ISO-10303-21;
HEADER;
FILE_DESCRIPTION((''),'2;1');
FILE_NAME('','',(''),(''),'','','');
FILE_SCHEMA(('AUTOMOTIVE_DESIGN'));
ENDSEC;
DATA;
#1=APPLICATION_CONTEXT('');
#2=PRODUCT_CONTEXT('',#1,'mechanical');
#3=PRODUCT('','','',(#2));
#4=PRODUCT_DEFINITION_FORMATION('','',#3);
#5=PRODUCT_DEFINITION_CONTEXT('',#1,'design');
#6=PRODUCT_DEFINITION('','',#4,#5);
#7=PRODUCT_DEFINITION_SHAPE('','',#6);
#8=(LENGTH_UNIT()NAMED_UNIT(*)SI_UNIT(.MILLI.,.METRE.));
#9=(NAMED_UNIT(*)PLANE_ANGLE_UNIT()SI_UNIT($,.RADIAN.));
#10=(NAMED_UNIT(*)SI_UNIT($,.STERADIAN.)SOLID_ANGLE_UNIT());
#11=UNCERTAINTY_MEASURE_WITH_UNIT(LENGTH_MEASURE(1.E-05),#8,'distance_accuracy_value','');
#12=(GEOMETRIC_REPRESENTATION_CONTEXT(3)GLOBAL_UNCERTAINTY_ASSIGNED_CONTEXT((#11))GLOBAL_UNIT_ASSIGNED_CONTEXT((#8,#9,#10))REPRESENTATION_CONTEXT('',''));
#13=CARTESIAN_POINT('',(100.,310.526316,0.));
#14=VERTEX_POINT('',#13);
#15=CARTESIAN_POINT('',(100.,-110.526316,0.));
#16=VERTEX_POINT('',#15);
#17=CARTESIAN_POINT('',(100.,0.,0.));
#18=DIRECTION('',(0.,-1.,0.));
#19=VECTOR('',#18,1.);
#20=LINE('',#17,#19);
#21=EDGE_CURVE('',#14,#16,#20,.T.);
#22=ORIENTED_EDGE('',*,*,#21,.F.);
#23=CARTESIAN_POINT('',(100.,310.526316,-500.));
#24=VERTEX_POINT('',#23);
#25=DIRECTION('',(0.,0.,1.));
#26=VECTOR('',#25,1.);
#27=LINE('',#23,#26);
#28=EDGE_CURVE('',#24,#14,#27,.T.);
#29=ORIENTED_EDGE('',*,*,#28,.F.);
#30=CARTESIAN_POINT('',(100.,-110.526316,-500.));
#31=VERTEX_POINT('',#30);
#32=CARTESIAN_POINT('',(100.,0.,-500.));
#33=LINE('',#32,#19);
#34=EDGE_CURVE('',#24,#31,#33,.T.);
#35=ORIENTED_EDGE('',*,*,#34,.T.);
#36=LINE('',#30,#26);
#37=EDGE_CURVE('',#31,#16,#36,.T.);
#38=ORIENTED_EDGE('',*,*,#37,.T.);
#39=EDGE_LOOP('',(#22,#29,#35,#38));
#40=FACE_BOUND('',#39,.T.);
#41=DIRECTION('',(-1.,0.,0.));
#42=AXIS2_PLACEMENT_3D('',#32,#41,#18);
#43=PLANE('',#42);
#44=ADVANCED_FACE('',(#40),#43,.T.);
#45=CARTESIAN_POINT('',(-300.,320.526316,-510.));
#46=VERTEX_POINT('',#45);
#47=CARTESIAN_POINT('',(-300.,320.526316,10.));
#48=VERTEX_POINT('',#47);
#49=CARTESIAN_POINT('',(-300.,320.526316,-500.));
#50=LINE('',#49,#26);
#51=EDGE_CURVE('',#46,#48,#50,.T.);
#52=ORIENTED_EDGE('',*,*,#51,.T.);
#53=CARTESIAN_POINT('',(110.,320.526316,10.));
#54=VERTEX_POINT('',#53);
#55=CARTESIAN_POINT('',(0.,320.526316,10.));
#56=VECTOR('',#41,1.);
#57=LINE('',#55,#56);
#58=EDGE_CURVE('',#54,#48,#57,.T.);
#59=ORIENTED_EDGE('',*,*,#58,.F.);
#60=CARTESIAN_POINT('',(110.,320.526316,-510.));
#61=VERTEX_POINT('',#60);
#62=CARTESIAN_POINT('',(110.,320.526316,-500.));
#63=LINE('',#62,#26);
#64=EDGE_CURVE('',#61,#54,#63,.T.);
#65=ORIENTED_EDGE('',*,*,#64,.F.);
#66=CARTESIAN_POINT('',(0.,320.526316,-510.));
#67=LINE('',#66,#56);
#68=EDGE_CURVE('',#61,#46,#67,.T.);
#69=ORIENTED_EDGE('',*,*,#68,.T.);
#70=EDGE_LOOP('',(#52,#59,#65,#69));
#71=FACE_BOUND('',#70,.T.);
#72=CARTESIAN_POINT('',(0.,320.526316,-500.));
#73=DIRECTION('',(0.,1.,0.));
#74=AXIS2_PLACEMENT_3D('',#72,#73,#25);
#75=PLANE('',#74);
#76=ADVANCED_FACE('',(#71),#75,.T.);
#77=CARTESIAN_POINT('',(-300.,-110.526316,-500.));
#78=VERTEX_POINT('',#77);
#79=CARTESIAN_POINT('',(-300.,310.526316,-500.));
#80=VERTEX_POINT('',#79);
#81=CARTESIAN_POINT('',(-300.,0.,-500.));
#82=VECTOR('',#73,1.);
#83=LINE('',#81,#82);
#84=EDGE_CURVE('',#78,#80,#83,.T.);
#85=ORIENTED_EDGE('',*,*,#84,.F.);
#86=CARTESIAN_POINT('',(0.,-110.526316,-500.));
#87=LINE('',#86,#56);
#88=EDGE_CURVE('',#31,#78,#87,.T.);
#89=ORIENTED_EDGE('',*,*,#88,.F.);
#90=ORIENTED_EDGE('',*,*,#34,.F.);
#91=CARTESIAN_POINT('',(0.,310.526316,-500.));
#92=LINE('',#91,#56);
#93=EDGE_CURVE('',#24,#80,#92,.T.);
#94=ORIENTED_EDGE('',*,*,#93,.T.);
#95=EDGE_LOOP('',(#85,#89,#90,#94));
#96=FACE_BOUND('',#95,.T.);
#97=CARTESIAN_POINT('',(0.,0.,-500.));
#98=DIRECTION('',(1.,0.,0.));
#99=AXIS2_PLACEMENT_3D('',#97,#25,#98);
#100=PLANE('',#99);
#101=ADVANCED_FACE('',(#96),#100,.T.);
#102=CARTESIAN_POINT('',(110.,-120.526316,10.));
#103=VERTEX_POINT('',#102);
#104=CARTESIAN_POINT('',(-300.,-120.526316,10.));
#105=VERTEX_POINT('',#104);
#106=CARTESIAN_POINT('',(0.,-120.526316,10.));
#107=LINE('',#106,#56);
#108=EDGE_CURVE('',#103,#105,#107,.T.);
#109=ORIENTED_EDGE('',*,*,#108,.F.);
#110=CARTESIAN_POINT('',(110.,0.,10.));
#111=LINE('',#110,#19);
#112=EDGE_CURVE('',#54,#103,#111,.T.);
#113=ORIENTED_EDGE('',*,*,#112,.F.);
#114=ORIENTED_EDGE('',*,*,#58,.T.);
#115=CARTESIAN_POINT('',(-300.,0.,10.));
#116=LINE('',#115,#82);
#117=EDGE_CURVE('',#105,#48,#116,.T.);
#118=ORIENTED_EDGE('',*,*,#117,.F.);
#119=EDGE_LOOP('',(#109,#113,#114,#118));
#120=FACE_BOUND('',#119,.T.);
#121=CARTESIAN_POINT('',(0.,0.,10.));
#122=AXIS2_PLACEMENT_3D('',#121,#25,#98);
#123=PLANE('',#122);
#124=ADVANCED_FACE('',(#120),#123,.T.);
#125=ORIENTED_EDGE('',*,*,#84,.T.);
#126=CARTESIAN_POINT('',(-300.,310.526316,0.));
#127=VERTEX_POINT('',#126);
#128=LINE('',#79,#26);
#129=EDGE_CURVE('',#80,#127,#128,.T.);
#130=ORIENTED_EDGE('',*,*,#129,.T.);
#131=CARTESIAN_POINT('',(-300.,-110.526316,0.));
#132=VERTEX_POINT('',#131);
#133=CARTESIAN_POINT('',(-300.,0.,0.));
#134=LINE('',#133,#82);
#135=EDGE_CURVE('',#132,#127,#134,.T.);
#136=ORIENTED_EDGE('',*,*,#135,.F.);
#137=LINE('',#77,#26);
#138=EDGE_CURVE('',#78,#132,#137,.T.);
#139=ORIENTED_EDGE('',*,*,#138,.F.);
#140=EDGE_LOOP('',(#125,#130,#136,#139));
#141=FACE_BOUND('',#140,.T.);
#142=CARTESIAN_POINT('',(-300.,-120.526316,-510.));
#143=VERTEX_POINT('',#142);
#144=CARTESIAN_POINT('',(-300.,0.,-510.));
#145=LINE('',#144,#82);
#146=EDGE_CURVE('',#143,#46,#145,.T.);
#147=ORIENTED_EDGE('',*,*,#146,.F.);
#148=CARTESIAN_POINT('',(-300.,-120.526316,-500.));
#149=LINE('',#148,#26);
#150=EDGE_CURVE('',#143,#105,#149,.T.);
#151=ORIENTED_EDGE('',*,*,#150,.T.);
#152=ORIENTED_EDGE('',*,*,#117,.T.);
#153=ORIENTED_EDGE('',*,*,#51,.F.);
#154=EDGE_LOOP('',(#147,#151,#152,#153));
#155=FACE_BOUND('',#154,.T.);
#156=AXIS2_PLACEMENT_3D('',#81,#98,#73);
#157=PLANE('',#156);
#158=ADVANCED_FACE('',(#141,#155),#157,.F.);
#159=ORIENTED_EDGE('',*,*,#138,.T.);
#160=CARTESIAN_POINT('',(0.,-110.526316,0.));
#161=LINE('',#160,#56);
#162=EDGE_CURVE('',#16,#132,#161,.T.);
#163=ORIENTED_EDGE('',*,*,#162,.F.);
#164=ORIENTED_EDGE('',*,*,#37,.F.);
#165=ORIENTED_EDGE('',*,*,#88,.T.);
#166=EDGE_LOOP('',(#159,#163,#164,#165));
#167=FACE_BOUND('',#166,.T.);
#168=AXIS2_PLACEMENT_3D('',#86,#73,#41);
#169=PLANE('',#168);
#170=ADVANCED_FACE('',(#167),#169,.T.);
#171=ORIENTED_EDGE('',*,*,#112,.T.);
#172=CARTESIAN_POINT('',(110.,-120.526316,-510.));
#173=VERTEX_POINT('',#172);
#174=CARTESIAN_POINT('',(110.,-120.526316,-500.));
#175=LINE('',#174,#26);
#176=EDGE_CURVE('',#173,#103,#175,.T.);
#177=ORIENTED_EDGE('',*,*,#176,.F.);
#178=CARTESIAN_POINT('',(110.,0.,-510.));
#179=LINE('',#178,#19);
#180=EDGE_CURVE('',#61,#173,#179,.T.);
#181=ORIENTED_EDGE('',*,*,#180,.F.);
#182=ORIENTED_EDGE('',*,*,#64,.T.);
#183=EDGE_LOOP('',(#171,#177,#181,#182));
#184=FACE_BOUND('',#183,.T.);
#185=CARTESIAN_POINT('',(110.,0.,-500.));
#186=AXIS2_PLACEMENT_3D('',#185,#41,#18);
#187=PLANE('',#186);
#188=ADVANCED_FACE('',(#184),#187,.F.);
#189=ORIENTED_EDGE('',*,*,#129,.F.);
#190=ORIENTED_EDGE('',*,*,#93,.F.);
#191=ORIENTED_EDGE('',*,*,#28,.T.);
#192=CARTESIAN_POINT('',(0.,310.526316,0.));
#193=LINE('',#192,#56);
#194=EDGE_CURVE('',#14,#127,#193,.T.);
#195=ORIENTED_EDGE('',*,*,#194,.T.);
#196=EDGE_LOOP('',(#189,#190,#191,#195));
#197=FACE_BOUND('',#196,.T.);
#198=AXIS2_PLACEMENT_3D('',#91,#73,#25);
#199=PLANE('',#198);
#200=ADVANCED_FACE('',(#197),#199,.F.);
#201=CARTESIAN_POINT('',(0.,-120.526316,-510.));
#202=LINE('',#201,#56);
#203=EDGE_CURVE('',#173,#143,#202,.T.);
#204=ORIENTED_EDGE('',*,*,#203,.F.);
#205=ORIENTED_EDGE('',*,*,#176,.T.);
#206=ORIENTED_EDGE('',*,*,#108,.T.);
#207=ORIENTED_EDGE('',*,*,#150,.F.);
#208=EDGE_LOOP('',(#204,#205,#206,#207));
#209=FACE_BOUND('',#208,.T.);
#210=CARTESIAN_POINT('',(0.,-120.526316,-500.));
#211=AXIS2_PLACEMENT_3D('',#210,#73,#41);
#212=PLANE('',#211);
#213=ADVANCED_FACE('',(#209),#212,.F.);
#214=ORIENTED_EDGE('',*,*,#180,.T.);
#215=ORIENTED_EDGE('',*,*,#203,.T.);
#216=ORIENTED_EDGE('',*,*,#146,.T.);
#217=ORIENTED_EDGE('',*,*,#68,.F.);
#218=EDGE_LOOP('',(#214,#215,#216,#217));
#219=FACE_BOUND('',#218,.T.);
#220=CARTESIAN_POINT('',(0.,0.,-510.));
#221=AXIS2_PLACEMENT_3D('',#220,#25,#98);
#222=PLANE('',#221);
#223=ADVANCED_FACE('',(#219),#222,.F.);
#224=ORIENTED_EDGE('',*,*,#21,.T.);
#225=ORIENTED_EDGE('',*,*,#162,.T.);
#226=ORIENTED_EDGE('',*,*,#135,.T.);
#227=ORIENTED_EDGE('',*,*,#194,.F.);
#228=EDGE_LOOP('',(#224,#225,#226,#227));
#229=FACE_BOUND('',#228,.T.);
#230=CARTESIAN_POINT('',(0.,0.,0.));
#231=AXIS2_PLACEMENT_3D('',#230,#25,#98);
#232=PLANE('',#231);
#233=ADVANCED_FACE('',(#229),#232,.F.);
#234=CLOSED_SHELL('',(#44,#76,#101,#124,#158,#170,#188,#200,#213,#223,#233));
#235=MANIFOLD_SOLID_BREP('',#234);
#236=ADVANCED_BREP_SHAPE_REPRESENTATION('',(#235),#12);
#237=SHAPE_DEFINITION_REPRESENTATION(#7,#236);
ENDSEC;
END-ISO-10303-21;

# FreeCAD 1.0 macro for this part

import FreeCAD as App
import Part
import Sketcher

V = App.Vector


def faces_at(feature, points):
    """Names of the faces that lie closest to the given points."""
    faces = feature.Shape.Faces
    near = lambda p: min(range(len(faces)), key=lambda i: faces[i].distToShape(Part.Vertex(*p))[0])
    return sorted({f"Face{near(p) + 1}" for p in points})


def add_polygon(sketch, points):
    """Adds a closed chain of lines whose ends are joined by coincident constraints."""
    first, n = sketch.GeometryCount, len(points)
    for a, b in zip(points, points[1:] + points[:1]):
        sketch.addGeometry(Part.LineSegment(App.Vector(*a, 0), App.Vector(*b, 0)), False)
    for i in range(n):
        sketch.addConstraint(Sketcher.Constraint("Coincident", first + i, 2, first + (i + 1) % n, 1))

doc = App.newDocument("Part")
body = doc.addObject("PartDesign::Body", "Body")

sketch1 = body.newObject("Sketcher::SketchObject", "Sketch")
sketch1.AttachmentSupport = (doc.getObject("XY_Plane"), [""])
sketch1.MapMode = "FlatFace"
add_polygon(sketch1, [(-300, 311), (-300, -111), (100, -111), (100, 311)])
sketch1.addConstraint(Sketcher.Constraint("Vertical", 0))
sketch1.addConstraint(Sketcher.Constraint("Horizontal", 1))
sketch1.addConstraint(Sketcher.Constraint("Vertical", 2))
sketch1.addConstraint(Sketcher.Constraint("Horizontal", 3))
sketch1.addConstraint(Sketcher.Constraint("DistanceX", 1, 1, 1, 2, 400.0))
sketch1.addConstraint(Sketcher.Constraint("DistanceX", 0, 2, -1, 1, 300.0))
sketch1.addConstraint(Sketcher.Constraint("DistanceY", 0, 2, 0, 1, 421.052632))
sketch1.addConstraint(Sketcher.Constraint("DistanceY", 0, 2, -1, 1, 110.526316))
pad1 = body.newObject("PartDesign::Pad", "Pad")
pad1.Profile = sketch1
pad1.Length = 500
pad1.Reversed = True
doc.recompute()

thickness = body.newObject("PartDesign::Thickness", "Thickness")
thickness.Base = (pad1, faces_at(pad1, [(-300, 100, -250)]))
thickness.Value = 10
thickness.Reversed = False
thickness.Join = "Intersection"

doc.recompute()
